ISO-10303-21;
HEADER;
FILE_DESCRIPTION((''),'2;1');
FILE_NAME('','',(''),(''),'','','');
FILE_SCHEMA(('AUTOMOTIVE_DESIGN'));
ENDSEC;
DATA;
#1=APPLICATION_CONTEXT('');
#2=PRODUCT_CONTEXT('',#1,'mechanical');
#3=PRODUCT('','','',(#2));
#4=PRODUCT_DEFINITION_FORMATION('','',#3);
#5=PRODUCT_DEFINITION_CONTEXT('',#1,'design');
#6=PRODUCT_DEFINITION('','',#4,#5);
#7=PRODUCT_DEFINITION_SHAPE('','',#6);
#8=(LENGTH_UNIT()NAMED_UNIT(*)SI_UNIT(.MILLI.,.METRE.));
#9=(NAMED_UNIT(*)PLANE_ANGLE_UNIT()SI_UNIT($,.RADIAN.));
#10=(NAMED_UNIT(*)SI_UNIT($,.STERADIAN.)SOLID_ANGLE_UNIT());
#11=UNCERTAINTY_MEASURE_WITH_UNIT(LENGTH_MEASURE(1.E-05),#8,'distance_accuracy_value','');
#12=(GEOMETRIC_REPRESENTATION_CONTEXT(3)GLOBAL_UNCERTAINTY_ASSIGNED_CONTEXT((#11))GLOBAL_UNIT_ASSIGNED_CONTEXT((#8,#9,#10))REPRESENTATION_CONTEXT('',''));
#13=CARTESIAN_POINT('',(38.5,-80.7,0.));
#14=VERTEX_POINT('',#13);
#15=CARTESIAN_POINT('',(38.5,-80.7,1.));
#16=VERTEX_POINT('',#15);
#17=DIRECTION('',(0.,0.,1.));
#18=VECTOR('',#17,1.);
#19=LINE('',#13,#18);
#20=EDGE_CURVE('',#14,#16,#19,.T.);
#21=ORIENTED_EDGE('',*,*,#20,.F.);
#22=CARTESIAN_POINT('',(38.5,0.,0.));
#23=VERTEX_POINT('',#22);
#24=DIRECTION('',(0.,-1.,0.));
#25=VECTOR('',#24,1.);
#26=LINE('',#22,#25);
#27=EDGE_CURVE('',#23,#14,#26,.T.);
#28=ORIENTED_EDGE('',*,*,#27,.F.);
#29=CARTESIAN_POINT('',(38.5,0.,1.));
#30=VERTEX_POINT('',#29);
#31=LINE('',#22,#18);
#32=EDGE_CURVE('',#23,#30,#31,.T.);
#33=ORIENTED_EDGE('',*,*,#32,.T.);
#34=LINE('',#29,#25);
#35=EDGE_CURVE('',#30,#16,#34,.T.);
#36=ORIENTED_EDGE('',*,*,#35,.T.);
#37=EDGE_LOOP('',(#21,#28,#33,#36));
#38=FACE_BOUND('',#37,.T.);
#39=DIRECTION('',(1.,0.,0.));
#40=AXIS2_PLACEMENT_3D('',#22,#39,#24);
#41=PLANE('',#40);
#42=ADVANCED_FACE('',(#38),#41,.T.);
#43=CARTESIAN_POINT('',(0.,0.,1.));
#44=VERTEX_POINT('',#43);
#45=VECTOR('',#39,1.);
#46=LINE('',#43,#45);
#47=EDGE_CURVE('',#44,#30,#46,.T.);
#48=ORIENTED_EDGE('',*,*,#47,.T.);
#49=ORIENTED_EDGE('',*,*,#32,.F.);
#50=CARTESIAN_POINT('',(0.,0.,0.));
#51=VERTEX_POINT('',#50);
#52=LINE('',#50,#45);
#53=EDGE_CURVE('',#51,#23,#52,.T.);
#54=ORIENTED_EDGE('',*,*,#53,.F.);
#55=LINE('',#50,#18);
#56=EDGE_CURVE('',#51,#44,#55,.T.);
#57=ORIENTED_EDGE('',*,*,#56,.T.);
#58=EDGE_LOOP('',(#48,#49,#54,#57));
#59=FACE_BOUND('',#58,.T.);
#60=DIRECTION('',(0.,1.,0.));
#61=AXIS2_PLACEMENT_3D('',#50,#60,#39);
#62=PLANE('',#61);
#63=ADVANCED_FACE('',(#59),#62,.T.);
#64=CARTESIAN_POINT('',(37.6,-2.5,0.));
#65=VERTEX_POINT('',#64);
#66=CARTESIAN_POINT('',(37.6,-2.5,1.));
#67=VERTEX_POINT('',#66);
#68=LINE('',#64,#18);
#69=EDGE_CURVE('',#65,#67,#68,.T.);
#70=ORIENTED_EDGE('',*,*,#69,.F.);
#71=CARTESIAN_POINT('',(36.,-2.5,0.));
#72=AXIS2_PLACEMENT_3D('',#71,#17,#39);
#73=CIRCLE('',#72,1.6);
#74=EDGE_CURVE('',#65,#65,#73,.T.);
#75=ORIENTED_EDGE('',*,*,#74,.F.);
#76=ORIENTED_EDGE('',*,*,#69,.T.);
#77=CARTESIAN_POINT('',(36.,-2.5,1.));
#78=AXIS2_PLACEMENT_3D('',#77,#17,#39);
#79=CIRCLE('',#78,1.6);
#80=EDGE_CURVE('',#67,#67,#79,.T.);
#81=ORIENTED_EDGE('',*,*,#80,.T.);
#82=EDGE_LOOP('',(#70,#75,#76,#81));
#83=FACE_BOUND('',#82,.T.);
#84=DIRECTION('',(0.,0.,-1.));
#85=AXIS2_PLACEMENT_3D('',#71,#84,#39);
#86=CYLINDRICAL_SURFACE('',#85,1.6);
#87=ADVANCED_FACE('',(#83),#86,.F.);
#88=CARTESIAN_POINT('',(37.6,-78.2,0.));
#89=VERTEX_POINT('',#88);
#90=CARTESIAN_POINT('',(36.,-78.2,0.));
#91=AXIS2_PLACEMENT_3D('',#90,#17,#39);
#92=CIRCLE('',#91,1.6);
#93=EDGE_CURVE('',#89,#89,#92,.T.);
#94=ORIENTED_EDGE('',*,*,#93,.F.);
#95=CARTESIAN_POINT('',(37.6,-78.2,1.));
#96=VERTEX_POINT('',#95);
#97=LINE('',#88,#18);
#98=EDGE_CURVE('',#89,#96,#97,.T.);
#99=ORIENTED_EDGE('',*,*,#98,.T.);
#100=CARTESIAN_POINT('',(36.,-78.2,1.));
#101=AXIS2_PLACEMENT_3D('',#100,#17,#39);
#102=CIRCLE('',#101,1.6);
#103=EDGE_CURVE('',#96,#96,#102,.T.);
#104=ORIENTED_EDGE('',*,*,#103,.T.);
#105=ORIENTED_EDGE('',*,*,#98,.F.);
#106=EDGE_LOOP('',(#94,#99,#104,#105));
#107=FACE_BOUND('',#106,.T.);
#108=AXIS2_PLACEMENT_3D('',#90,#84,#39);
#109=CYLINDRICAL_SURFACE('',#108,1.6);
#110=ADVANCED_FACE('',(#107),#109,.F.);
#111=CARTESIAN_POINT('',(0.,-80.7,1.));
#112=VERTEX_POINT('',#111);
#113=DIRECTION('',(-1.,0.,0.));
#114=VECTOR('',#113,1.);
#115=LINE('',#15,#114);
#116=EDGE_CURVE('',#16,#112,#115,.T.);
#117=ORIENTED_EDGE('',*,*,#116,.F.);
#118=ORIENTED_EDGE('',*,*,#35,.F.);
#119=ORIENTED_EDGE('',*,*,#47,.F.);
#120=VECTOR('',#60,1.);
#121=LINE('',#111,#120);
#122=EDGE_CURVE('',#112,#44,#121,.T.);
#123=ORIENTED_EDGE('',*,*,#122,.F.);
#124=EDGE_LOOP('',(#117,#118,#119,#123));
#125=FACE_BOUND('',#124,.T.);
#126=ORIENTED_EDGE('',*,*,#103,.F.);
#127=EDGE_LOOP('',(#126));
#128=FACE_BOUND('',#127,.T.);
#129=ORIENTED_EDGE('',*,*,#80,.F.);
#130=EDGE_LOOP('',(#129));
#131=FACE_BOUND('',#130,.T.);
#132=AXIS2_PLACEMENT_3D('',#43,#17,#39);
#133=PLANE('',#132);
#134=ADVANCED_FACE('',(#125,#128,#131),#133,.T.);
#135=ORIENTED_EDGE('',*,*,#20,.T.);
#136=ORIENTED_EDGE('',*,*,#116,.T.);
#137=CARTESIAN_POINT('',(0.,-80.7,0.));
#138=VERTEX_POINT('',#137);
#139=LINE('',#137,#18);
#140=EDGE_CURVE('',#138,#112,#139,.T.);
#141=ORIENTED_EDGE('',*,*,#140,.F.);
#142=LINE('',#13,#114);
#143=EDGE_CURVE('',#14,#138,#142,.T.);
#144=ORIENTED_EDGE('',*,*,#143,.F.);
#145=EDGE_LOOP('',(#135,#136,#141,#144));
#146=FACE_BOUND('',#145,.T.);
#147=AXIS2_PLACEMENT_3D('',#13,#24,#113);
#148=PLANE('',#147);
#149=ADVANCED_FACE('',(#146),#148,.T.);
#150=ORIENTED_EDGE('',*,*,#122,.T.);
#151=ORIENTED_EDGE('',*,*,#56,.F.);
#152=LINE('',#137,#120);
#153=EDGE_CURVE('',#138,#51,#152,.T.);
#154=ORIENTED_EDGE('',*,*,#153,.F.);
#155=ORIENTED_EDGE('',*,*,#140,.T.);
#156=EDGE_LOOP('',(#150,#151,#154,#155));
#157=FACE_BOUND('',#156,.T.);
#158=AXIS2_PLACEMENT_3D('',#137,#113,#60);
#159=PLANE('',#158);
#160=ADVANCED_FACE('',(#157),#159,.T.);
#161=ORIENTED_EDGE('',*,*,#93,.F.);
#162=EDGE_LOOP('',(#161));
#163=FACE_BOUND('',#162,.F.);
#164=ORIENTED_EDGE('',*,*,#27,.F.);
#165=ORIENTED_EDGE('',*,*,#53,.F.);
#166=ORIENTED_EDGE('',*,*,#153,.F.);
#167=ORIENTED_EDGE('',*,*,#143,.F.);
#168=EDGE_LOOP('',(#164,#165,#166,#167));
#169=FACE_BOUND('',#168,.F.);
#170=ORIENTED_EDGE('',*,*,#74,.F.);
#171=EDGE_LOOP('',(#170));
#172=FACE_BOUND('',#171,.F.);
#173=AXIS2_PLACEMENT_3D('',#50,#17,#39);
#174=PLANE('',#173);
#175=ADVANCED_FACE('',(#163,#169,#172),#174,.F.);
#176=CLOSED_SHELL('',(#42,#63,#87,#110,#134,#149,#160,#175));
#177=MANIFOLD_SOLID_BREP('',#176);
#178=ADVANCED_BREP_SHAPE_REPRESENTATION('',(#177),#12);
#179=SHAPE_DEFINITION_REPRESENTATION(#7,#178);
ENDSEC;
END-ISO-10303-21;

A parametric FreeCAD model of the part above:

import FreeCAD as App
import Part
import Sketcher

V = App.Vector
Q = App.Units.Quantity


def add_polygon(sketch, points):
    """Adds a closed chain of lines whose ends are joined by coincident constraints."""
    first, n = sketch.GeometryCount, len(points)
    for a, b in zip(points, points[1:] + points[:1]):
        sketch.addGeometry(Part.LineSegment(App.Vector(*a, 0), App.Vector(*b, 0)), False)
    for i in range(n):
        sketch.addConstraint(Sketcher.Constraint("Coincident", first + i, 2, first + (i + 1) % n, 1))

doc = App.newDocument("Part")
body = doc.addObject("PartDesign::Body", "Body")

# Sketch on XY plane
sketch1 = doc.addObject("Sketcher::SketchObject", "Sketch")
body.addObject(sketch1)
sketch1.AttachmentSupport = (doc.XY_Plane, [""])
sketch1.MapMode = "FlatFace"
add_polygon(sketch1, [(38.5, 0), (0, 0), (0, -80.7), (38.5, -80.7)])  # lines 0-3
sketch1.addGeometry(Part.Circle(V(36, -78.2, 0), V(0, 0, 1), 1.6), False)  # 4
sketch1.addGeometry(Part.Circle(V(36, -2.5, 0), V(0, 0, 1), 1.6), False)  # 5
sketch1.addConstraint(Sketcher.Constraint("Horizontal", 0))
sketch1.addConstraint(Sketcher.Constraint("Vertical", 1))
sketch1.addConstraint(Sketcher.Constraint("Horizontal", 2))
sketch1.addConstraint(Sketcher.Constraint("Vertical", 3))
sketch1.addConstraint(Sketcher.Constraint("Coincident", 0, 2, -1, 1))
sketch1.addConstraint(Sketcher.Constraint("Equal", 4, 5))
sketch1.addConstraint(Sketcher.Constraint("Vertical", 4, 3, 5, 3))
sketch1.addConstraint(Sketcher.Constraint("Diameter", 4, Q("3.2 mm")))
sketch1.addConstraint(Sketcher.Constraint("DistanceX", 0, 2, 0, 1, Q("38.5 mm")))
sketch1.addConstraint(Sketcher.Constraint("DistanceY", 1, 2, 1, 1, Q("80.7 mm")))
sketch1.addConstraint(Sketcher.Constraint("DistanceX", -1, 1, 4, 3, Q("36 mm")))
sketch1.addConstraint(Sketcher.Constraint("DistanceY", 4, 3, -1, 1, Q("78.2 mm")))
sketch1.addConstraint(Sketcher.Constraint("DistanceY", 5, 3, -1, 1, Q("2.5 mm")))
pad1 = doc.addObject("PartDesign::Pad", "Pad")
body.addObject(pad1)
pad1.Profile = sketch1
pad1.Length = 1

doc.recompute()
